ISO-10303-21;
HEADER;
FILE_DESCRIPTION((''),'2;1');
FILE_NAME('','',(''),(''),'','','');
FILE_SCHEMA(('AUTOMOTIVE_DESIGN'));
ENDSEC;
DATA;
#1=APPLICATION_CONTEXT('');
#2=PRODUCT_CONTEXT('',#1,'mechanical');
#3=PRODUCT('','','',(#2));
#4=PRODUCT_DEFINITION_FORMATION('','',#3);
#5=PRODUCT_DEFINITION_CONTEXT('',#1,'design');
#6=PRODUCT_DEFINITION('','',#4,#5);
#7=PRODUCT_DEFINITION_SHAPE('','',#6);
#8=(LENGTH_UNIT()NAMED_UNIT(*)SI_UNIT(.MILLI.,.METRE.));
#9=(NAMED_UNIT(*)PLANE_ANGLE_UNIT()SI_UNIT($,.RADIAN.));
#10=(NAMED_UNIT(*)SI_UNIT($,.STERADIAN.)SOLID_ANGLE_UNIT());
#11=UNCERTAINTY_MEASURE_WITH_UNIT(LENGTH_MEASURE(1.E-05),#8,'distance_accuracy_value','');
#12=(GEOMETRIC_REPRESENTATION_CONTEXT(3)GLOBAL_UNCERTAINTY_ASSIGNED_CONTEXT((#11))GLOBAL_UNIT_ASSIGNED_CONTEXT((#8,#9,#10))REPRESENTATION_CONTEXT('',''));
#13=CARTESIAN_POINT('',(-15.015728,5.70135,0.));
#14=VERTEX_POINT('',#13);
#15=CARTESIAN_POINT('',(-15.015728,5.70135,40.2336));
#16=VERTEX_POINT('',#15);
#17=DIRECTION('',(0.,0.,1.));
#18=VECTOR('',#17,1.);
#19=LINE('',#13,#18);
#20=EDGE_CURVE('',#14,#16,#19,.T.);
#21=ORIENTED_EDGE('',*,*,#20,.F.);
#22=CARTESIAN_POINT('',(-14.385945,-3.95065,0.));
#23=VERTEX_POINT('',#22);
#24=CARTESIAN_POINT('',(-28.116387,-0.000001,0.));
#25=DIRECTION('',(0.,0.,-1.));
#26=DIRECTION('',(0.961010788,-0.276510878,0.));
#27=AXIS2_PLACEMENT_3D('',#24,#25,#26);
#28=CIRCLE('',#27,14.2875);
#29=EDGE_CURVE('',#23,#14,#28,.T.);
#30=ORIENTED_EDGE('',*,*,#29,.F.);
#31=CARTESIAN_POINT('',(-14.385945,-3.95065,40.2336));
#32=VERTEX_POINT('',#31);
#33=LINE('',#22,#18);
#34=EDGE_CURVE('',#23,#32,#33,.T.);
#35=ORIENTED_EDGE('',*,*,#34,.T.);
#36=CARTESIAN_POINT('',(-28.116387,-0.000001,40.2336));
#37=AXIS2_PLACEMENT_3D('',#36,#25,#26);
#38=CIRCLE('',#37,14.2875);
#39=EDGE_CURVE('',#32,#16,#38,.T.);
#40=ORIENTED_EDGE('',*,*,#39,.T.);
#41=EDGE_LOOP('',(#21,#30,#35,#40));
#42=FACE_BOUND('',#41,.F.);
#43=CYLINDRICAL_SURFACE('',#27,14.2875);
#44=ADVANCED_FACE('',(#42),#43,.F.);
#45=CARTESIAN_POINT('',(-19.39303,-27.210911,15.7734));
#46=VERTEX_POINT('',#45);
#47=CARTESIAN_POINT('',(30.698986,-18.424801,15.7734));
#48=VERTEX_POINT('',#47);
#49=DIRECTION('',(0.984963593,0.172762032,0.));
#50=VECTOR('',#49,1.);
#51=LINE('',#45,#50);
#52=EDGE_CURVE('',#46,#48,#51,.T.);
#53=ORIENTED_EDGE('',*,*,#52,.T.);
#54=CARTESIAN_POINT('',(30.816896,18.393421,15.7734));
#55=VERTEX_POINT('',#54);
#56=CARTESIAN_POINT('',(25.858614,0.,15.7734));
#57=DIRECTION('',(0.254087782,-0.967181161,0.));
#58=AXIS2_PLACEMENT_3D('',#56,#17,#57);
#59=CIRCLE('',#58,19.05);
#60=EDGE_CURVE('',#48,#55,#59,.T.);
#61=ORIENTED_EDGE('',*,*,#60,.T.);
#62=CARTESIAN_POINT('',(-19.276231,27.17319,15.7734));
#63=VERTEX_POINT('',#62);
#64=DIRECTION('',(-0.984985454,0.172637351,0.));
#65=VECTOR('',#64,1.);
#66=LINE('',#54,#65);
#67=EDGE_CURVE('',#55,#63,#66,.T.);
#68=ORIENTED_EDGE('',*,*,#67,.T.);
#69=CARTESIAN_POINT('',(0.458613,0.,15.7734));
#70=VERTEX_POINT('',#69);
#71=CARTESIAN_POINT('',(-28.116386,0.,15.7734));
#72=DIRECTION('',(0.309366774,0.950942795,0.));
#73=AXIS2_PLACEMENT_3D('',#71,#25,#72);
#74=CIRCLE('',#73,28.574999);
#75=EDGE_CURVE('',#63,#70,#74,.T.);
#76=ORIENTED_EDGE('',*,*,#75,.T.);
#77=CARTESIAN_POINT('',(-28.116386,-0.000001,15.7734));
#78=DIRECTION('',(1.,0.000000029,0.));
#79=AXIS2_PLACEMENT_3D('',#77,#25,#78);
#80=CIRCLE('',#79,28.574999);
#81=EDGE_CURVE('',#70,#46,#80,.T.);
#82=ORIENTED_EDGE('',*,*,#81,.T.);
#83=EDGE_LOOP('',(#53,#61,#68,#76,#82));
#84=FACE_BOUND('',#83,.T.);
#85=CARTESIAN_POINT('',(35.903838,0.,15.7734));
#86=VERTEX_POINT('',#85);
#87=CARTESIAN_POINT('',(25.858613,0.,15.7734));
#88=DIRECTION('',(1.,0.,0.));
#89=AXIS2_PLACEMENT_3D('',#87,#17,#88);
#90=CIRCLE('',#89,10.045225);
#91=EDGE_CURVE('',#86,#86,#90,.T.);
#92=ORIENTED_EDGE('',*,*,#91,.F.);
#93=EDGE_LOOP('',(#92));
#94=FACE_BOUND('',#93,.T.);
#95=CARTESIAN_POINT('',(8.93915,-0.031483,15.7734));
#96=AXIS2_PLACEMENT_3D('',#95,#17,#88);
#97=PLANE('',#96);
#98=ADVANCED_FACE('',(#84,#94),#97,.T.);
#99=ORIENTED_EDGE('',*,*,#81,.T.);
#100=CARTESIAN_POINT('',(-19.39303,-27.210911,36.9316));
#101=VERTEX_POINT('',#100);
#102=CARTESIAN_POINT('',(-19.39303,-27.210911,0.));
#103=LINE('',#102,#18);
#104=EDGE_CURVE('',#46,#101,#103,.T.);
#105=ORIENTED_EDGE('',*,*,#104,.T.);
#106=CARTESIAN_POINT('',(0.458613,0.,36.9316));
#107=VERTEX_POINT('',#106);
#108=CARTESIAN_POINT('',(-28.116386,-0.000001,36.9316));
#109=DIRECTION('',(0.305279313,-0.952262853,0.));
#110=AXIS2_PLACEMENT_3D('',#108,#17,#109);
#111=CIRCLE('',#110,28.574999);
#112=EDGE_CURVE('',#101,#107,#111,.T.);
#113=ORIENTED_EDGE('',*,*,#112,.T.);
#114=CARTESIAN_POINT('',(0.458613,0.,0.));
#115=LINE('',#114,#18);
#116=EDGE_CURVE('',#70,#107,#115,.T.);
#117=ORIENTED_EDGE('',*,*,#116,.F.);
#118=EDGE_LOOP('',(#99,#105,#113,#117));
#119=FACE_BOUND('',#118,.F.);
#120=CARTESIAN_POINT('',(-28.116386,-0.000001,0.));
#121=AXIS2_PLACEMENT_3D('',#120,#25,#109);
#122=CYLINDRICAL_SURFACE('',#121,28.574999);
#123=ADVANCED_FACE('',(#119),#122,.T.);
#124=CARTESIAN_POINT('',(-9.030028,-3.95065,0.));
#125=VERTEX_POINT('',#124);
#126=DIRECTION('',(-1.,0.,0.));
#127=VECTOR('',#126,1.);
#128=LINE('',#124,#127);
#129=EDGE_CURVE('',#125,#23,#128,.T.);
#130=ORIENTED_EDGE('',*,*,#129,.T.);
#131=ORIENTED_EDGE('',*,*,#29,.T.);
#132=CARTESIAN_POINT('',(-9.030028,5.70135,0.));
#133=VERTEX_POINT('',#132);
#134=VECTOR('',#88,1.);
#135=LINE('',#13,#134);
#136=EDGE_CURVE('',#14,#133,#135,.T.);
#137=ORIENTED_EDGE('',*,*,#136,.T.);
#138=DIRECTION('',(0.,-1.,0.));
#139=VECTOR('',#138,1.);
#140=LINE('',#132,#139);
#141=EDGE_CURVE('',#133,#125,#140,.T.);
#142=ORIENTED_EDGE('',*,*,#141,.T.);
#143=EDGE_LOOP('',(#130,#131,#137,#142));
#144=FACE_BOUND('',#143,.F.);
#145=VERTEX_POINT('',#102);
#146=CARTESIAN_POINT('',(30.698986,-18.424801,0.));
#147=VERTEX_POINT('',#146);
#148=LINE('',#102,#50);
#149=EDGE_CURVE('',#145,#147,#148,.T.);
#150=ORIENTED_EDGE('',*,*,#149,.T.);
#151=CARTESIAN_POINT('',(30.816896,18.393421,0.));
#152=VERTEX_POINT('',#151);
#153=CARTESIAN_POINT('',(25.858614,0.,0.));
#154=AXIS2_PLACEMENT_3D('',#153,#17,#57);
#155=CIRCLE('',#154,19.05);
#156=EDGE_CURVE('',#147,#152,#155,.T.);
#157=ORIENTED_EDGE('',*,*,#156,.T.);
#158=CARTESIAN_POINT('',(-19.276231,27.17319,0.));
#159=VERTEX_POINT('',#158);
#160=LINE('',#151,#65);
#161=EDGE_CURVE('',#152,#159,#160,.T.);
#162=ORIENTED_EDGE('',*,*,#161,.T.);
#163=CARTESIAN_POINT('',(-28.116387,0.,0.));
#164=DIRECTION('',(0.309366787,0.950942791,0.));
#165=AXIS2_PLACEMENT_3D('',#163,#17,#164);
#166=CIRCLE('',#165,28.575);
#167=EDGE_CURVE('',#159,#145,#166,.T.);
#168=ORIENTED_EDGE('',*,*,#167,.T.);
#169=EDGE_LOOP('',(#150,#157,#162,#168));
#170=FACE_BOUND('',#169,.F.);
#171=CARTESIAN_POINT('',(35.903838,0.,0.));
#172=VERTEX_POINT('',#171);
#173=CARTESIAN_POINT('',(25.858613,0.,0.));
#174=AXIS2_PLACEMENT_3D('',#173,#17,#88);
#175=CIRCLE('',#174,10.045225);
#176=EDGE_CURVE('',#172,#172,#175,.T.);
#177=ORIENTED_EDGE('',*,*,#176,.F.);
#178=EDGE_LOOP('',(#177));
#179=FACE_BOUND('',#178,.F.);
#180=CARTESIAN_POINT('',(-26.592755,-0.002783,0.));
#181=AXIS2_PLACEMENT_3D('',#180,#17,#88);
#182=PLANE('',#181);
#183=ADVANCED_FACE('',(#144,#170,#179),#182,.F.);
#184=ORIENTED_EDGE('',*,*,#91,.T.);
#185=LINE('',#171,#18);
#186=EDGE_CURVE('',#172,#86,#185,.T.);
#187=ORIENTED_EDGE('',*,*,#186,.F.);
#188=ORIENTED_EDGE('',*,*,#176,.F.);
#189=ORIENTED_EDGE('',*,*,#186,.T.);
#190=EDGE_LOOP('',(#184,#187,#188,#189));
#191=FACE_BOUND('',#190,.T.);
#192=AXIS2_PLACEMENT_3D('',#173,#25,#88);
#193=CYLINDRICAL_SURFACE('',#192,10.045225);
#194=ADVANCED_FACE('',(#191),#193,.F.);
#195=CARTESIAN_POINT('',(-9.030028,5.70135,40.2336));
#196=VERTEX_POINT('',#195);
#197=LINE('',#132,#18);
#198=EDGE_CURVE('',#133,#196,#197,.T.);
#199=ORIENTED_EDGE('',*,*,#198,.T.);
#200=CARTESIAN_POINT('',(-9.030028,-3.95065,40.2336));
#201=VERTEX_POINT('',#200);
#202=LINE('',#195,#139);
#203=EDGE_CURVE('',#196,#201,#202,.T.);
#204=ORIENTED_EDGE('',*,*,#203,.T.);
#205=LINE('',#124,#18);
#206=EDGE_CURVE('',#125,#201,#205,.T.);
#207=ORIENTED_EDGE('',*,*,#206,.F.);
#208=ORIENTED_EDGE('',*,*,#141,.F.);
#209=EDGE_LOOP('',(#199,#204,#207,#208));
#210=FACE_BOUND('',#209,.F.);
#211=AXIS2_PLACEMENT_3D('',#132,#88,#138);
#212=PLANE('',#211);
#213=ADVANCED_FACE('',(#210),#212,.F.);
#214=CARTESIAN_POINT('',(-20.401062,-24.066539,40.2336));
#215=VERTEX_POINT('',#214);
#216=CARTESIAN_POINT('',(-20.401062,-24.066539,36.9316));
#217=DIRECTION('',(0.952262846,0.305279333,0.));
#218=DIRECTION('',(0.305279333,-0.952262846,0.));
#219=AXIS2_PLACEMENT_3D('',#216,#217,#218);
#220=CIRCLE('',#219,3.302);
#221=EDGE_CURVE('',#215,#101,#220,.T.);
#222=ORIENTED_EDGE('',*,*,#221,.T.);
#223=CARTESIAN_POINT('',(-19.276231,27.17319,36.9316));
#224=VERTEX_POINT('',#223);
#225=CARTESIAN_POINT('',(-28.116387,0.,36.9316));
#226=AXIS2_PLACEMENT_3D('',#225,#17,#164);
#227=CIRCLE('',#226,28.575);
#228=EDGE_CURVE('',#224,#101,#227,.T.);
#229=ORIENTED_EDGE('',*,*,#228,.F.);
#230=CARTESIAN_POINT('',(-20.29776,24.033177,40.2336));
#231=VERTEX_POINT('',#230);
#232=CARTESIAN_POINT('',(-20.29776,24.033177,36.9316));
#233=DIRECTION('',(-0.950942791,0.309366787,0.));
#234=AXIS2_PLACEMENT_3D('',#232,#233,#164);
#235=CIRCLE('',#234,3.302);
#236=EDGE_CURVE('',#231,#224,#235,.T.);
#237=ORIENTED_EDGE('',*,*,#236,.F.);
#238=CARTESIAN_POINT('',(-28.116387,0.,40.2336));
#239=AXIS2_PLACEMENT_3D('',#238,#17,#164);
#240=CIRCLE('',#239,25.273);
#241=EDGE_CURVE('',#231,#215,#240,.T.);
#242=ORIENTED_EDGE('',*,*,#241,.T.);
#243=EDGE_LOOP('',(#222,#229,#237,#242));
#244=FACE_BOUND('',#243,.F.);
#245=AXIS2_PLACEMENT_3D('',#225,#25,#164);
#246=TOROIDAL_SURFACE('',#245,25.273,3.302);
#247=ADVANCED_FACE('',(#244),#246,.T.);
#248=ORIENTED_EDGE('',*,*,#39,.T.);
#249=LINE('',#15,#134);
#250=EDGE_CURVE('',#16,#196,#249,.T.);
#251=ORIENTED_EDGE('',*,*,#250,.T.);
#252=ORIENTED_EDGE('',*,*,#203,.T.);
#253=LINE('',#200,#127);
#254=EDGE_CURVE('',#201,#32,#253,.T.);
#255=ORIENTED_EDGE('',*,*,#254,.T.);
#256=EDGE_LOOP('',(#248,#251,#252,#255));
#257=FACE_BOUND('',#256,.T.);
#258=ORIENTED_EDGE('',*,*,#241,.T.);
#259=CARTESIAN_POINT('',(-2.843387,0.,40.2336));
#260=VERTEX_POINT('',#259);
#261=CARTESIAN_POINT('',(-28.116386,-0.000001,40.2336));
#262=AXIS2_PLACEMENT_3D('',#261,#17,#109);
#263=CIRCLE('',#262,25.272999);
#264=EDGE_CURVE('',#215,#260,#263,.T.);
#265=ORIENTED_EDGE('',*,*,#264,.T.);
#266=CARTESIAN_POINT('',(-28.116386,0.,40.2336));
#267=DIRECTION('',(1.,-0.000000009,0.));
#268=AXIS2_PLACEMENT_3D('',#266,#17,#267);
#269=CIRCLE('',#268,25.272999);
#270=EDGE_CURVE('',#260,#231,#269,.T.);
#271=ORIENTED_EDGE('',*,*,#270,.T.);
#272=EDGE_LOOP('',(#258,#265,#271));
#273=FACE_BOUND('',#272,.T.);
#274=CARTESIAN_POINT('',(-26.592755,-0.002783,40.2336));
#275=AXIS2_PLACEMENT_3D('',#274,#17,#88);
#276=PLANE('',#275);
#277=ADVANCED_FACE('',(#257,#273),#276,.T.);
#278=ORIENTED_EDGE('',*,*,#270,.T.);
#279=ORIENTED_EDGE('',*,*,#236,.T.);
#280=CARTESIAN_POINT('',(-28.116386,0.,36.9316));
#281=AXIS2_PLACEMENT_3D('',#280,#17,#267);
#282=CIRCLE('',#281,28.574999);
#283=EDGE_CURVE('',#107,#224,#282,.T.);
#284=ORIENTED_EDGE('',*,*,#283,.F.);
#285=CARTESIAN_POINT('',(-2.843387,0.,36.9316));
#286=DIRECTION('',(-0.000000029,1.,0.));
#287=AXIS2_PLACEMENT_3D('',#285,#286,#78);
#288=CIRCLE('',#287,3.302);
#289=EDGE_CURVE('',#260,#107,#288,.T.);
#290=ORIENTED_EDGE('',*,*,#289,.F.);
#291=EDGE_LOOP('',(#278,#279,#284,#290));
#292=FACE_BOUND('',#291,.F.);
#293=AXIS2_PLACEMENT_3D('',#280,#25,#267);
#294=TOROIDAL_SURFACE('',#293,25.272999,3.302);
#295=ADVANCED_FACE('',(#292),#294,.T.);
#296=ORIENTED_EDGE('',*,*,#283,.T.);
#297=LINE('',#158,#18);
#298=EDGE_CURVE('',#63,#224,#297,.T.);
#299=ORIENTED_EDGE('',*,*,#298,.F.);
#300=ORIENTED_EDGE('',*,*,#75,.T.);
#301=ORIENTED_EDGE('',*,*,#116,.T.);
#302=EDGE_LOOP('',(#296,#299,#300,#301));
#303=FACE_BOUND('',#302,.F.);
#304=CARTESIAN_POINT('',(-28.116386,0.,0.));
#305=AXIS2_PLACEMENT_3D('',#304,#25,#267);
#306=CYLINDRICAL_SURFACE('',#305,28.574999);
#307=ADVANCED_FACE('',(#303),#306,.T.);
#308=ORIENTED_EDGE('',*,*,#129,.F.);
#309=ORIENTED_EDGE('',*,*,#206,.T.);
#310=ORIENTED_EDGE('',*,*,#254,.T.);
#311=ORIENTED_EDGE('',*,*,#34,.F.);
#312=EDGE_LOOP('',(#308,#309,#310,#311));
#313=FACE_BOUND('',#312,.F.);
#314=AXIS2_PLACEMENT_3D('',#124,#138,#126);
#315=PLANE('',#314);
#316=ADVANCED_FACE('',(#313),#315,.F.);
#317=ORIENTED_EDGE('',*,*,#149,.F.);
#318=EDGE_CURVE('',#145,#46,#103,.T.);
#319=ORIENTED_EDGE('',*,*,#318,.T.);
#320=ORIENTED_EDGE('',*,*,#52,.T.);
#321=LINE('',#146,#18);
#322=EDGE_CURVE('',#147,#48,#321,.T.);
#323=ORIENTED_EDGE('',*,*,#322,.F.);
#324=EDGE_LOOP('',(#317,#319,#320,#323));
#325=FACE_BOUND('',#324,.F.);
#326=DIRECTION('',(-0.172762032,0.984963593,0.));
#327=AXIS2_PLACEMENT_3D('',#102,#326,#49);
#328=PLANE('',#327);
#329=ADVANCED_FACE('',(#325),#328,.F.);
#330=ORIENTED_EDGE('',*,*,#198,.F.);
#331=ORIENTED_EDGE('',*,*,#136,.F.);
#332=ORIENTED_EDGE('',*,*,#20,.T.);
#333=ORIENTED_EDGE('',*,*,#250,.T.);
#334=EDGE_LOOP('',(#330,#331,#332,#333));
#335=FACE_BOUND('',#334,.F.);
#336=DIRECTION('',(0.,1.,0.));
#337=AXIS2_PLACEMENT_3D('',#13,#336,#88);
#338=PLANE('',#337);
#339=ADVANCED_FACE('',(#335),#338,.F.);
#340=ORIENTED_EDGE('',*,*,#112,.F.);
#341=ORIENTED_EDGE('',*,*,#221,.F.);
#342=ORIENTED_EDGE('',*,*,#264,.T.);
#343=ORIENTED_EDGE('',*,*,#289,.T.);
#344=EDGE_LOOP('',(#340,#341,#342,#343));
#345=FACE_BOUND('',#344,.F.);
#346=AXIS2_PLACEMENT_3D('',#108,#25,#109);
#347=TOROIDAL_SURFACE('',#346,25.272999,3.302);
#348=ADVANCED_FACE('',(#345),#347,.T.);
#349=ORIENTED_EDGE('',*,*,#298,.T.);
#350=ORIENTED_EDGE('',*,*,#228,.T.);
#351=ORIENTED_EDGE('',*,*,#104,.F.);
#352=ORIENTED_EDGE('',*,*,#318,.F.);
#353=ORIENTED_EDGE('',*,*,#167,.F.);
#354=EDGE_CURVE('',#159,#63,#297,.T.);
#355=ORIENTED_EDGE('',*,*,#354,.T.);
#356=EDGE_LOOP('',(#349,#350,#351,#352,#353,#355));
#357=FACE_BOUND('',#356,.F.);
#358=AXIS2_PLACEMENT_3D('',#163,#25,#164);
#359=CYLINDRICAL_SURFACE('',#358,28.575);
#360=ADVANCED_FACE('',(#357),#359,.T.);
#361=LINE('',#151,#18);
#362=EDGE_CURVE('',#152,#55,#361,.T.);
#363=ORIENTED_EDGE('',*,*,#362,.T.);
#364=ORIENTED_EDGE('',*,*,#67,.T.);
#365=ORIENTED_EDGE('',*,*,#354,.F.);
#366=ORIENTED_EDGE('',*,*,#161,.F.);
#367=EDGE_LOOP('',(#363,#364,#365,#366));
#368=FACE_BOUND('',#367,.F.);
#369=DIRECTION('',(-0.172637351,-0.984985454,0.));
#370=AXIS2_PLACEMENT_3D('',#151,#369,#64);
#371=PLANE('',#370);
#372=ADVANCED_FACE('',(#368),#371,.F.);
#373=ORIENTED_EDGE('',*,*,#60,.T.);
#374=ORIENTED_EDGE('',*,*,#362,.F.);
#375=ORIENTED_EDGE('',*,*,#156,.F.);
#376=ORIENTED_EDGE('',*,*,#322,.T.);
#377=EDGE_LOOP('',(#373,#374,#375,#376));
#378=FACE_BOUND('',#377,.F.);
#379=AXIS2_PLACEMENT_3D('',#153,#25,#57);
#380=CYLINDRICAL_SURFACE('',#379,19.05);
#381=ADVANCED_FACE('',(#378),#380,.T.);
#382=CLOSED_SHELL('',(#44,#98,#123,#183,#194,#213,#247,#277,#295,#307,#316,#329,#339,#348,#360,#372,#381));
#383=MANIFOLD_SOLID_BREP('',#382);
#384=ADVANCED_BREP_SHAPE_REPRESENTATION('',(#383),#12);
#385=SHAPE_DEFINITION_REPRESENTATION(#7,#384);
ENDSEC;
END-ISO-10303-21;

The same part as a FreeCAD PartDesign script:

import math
import FreeCAD as App
import Part
import Sketcher
Q = App.Units.Quantity


def edges_at(feature, points):
    """Names of the edges that pass closest to the given points."""
    edges = feature.Shape.Edges
    near = lambda p: min(range(len(edges)), key=lambda i: edges[i].distToShape(Part.Vertex(*p))[0])
    return sorted({f"Edge{near(p) + 1}" for p in points})

doc = App.newDocument("Part")
body = doc.addObject("PartDesign::Body", "Body")

# Sketch on XY plane
sketch1 = body.newObject("Sketcher::SketchObject", "Sketch")
sketch1.AttachmentSupport = (doc.getObject("XY_Plane"), [""])
sketch1.MapMode = "FlatFace"
sketch1.addGeometry([
    Part.ArcOfCircle(Part.Circle(App.Vector(-28, 0, 0), App.Vector(0, 0, 1), 29), math.radians(0), math.radians(72)),  # 0
    Part.ArcOfCircle(Part.Circle(App.Vector(-28, 0, 0), App.Vector(0, 0, 1), 29), math.radians(-72), math.radians(0)),  # 1
    Part.LineSegment(App.Vector(-19, -27, 0), App.Vector(31, -18, 0)),  # 2
    Part.ArcOfCircle(Part.Circle(App.Vector(26, 0, 0), App.Vector(0, 0, 1), 19), math.radians(-75), math.radians(75)),  # 3
    Part.LineSegment(App.Vector(31, 18, 0), App.Vector(-19, 27, 0)),  # 4
    Part.Circle(App.Vector(26, 0, 0), App.Vector(0, 0, 1), 10),  # 5
], False)
sketch1.addConstraint([
    Sketcher.Constraint("Tangent", 0, 1, 1, 2),
    Sketcher.Constraint("Coincident", 1, 1, 2, 1),
    Sketcher.Constraint("Coincident", 2, 2, 3, 1),
    Sketcher.Constraint("Coincident", 3, 2, 4, 1),
    Sketcher.Constraint("Coincident", 4, 2, 0, 2),
    Sketcher.Constraint("Coincident", 5, 3, 3, 3),
    Sketcher.Constraint("Equal", 0, 1),
    Sketcher.Constraint("PointOnObject", 0, 3, -1),
    Sketcher.Constraint("PointOnObject", 3, 3, -1),
    Sketcher.Constraint("PointOnObject", 0, 1, -1),
    Sketcher.Constraint("Equal", 2, 4),
    Sketcher.Constraint("Radius", 3, Q("0.75 in")),
    Sketcher.Constraint("Radius", 0, Q("1.125 in")),
    Sketcher.Constraint("DistanceX", 0, 1, 5, 3, Q("1 in")),
    Sketcher.Constraint("Diameter", 5, 20.09045),
    Sketcher.Constraint("DistanceY", 2, 2, -1, 1, 18.424801),
    Sketcher.Constraint("Distance", 2, 50.856718),
    Sketcher.Constraint("DistanceX", 1, 1, -1, 1, 19.39303),
    Sketcher.Constraint("DistanceY", -1, 1, 3, 2, 18.393421),
])
pad1 = body.newObject("PartDesign::Pad", "Pad")
pad1.Profile = sketch1
pad1.Length = Q("0.621 in")

# Sketch on XY plane
sketch2 = body.newObject("Sketcher::SketchObject", "Sketch001")
sketch2.AttachmentSupport = (doc.getObject("XY_Plane"), [""])
sketch2.MapMode = "FlatFace"
sketch2.addGeometry([
    Part.ArcOfCircle(Part.Circle(App.Vector(-28, 0, 0), App.Vector(0, 0, 1), 29), math.radians(-72), math.radians(0)),  # 0
    Part.ArcOfCircle(Part.Circle(App.Vector(-28, 0, 0), App.Vector(0, 0, 1), 29), math.radians(0), math.radians(72)),  # 1
    Part.ArcOfCircle(Part.Circle(App.Vector(-28, 0, 0), App.Vector(0, 0, 1), 29), math.radians(72), math.radians(288)),  # 2
    Part.LineSegment(App.Vector(-9, -4, 0), App.Vector(-14, -4, 0)),  # 3
    Part.ArcOfCircle(Part.Circle(App.Vector(-28, 0, 0), App.Vector(0, 0, 1), 14), math.radians(24), math.radians(344)),  # 4
    Part.LineSegment(App.Vector(-15, 6, 0), App.Vector(-9, 6, 0)),  # 5
    Part.LineSegment(App.Vector(-9, 6, 0), App.Vector(-9, -4, 0)),  # 6
], False)
sketch2.addConstraint([
    Sketcher.Constraint("Tangent", 0, 2, 1, 1),
    Sketcher.Constraint("Tangent", 1, 2, 2, 1),
    Sketcher.Constraint("Tangent", 2, 2, 0, 1),
    Sketcher.Constraint("Coincident", 3, 2, 4, 2),
    Sketcher.Constraint("Coincident", 4, 1, 5, 1),
    Sketcher.Constraint("Coincident", 5, 2, 6, 1),
    Sketcher.Constraint("Coincident", 6, 2, 3, 1),
    Sketcher.Constraint("Horizontal", 3),
    Sketcher.Constraint("Horizontal", 5),
    Sketcher.Constraint("Vertical", 6),
    Sketcher.Constraint("Coincident", 4, 3, 0, 3),
    Sketcher.Constraint("PointOnObject", 0, 3, -1),
    Sketcher.Constraint("PointOnObject", 0, 2, -1),
    Sketcher.Constraint("Radius", 0, Q("1.125 in")),
    Sketcher.Constraint("Radius", 4, Q("0.5625 in")),
    Sketcher.Constraint("DistanceY", 6, 2, 6, 1, Q("0.38 in")),
    Sketcher.Constraint("DistanceX", 5, 1, 5, 2, 5.9857),
    Sketcher.Constraint("DistanceX", 3, 2, 3, 1, 5.355917),
    Sketcher.Constraint("DistanceX", 1, 2, -1, 1, 19.276231),
    Sketcher.Constraint("DistanceY", -1, 1, 1, 2, 27.17319),
    Sketcher.Constraint("DistanceX", 2, 2, -1, 1, 19.39303),
])
pad2 = body.newObject("PartDesign::Pad", "Pad001")
pad2.Profile = sketch2
pad2.Length = Q("1.584 in")
doc.recompute()

fillet = body.newObject("PartDesign::Fillet", "Fillet")
fillet.Base = (pad2, edges_at(pad2, [(-56.691, 0.061, 40.234)]))
fillet.Radius = Q("0.13 in")

doc.recompute()
